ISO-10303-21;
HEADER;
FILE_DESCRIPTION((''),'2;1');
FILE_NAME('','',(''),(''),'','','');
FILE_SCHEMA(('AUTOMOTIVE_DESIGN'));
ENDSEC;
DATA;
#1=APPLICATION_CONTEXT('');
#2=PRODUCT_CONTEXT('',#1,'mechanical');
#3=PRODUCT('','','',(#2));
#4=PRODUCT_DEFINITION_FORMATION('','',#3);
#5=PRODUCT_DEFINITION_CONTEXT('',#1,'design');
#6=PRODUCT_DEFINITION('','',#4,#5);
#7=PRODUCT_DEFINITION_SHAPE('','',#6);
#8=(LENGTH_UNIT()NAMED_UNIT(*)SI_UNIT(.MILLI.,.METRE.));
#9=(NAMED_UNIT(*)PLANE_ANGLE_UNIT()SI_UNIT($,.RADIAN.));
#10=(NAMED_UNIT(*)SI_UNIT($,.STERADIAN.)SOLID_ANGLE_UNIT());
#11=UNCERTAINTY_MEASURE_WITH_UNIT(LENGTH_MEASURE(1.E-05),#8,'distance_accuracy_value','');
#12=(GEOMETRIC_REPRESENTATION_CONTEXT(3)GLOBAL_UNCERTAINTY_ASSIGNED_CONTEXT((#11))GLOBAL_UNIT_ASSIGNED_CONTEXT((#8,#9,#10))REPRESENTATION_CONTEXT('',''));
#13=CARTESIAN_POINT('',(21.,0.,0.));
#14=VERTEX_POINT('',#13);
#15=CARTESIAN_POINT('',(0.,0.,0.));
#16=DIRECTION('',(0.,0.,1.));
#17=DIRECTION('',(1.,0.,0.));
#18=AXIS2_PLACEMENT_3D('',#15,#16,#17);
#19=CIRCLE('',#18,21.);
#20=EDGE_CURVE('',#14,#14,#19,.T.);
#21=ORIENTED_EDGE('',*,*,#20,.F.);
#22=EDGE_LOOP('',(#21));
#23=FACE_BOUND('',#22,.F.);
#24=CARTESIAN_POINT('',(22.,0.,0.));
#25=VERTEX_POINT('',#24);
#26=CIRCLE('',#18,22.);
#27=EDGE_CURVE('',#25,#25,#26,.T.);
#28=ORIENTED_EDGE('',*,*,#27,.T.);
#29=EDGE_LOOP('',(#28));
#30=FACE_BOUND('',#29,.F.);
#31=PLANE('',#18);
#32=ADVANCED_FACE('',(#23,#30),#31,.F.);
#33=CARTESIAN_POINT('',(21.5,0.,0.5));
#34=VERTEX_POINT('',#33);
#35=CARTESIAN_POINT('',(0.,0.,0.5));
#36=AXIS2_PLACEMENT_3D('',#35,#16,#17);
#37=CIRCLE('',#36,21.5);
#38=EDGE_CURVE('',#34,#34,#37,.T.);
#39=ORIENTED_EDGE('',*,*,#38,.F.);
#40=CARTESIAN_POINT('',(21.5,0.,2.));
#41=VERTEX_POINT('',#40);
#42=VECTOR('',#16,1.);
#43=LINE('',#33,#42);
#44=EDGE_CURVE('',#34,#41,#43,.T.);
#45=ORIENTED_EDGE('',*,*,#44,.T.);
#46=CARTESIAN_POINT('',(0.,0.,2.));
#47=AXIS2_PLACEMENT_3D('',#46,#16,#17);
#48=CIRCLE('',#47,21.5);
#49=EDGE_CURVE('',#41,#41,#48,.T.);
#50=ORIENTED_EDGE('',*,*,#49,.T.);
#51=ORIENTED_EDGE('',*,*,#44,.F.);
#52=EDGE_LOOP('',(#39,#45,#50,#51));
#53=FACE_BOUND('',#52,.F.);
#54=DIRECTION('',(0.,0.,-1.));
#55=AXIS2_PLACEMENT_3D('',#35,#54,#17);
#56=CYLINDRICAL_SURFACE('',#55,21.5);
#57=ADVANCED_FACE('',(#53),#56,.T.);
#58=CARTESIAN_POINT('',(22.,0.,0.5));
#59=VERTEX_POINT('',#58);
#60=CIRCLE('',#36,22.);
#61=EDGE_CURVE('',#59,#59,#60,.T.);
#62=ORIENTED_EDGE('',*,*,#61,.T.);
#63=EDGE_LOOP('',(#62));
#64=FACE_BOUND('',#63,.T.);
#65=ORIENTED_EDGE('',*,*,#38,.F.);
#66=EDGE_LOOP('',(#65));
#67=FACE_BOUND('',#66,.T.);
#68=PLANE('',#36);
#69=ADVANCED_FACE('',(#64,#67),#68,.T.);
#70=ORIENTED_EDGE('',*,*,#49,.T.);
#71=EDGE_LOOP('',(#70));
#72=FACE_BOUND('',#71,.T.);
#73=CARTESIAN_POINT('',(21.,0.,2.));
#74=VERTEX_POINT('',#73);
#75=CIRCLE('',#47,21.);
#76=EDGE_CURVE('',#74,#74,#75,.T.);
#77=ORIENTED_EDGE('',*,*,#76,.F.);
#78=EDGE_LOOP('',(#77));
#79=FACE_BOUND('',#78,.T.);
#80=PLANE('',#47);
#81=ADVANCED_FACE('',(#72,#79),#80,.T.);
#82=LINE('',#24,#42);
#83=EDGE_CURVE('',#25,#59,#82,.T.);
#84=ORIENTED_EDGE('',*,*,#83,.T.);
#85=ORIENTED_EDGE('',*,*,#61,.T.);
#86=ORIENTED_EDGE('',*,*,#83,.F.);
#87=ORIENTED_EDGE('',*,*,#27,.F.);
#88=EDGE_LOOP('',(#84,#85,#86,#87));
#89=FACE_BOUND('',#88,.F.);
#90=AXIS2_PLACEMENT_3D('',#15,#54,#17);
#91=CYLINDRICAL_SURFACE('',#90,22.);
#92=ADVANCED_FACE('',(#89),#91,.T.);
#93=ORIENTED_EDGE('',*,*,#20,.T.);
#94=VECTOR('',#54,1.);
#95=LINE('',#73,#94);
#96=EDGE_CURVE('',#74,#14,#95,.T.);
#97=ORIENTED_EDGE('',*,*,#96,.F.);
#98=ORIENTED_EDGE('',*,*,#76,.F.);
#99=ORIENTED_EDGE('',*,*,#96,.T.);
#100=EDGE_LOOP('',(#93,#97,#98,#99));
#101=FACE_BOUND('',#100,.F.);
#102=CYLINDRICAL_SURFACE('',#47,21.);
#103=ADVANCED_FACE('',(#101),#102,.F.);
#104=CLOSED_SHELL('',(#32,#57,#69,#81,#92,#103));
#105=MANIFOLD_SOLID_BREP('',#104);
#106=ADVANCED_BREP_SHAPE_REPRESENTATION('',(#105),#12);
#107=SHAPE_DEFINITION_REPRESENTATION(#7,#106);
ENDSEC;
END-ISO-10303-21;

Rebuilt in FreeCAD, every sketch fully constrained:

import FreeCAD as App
import Part
import Sketcher

doc = App.newDocument("Part")
params = doc.addObject("Spreadsheet::Sheet", "Params")
for row, (alias, value) in enumerate([
    ("sketch1_diameter", "44 mm"),
    ("pad1_length", "0.5 mm"),
    ("sketch2_diameter", "43 mm"),
    ("pad2_length", "1.5 mm"),
    ("sketch3_diameter", "42 mm"),
    ("pocket1_length", "5 mm"),
], start=1):
    params.set(f"A{row}", alias)
    params.set(f"B{row}", "=" + value)
    params.setAlias(f"B{row}", alias)

body = doc.addObject("PartDesign::Body", "Body")

sketch1 = body.newObject("Sketcher::SketchObject", "Sketch")
sketch1.AttachmentSupport = (doc.getObject("XY_Plane"), [""])
sketch1.MapMode = "FlatFace"
sketch1.addGeometry(Part.Circle(App.Vector(0, 0, 0), App.Vector(0, 0, 1), 22), False)
sketch1.addConstraint([
    Sketcher.Constraint("Coincident", 0, 3, -1, 1),
    Sketcher.Constraint("Diameter", 0, 44.0),
])
sketch1.setExpression("Constraints[1]", "Params.sketch1_diameter")
pad1 = body.newObject("PartDesign::Pad", "Pad")
pad1.Profile = sketch1
pad1.setExpression("Length", "Params.pad1_length")

sketch2 = body.newObject("Sketcher::SketchObject", "Sketch001")
sketch2.AttachmentSupport = (doc.getObject("XY_Plane"), [""])
sketch2.MapMode = "FlatFace"
sketch2.AttachmentOffset = App.Placement(App.Vector(0, 0, 0.5), App.Rotation())
sketch2.addGeometry(Part.Circle(App.Vector(0, 0, 0), App.Vector(0, 0, 1), 21.5), False)
sketch2.addConstraint([
    Sketcher.Constraint("Coincident", 0, 3, -1, 1),
    Sketcher.Constraint("Diameter", 0, 43.0),
])
sketch2.setExpression("Constraints[1]", "Params.sketch2_diameter")
pad2 = body.newObject("PartDesign::Pad", "Pad001")
pad2.Profile = sketch2
pad2.setExpression("Length", "Params.pad2_length")

sketch3 = body.newObject("Sketcher::SketchObject", "Sketch002")
sketch3.AttachmentSupport = (doc.getObject("XY_Plane"), [""])
sketch3.MapMode = "FlatFace"
sketch3.AttachmentOffset = App.Placement(App.Vector(0, 0, 2), App.Rotation())
sketch3.addGeometry(Part.Circle(App.Vector(0, 0, 0), App.Vector(0, 0, 1), 21), False)
sketch3.addConstraint([
    Sketcher.Constraint("Coincident", 0, 3, -1, 1),
    Sketcher.Constraint("Diameter", 0, 42.0),
])
sketch3.setExpression("Constraints[1]", "Params.sketch3_diameter")
pocket1 = body.newObject("PartDesign::Pocket", "Pocket")
pocket1.Profile = sketch3
pocket1.setExpression("Length", "Params.pocket1_length")

doc.recompute()
